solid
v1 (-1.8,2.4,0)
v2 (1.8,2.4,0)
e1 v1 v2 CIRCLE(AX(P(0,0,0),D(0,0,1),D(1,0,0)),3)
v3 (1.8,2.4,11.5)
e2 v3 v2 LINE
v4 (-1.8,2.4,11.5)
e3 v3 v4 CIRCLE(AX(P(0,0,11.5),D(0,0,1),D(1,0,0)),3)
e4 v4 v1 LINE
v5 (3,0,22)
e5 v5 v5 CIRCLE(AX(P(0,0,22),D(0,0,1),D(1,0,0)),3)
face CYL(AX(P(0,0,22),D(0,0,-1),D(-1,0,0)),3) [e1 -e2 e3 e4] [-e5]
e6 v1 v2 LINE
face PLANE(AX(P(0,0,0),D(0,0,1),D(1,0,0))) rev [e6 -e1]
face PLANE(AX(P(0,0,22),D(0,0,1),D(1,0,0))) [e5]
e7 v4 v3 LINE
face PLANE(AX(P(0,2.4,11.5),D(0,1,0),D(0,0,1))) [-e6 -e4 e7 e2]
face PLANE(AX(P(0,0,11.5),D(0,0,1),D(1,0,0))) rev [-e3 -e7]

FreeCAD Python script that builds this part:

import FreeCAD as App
import Part
import Sketcher

V = App.Vector
Q = App.Units.Quantity

doc = App.newDocument("Part")
body = doc.addObject("PartDesign::Body", "Body")

sketch1 = body.newObject("Sketcher::SketchObject", "Sketch")
sketch1.AttachmentSupport = (doc.getObject("XY_Plane"), [""])
sketch1.MapMode = "FlatFace"
sketch1.addGeometry(Part.Circle(V(0, 0, 0), V(0, 0, 1), 3), False)
sketch1.addConstraint([
    Sketcher.Constraint("Coincident", 0, 3, -1, 1),
    Sketcher.Constraint("Diameter", 0, Q("6 mm")),
])
pad1 = body.newObject("PartDesign::Pad", "Pad")
pad1.Profile = sketch1
pad1.Length = 22

sketch2 = body.newObject("Sketcher::SketchObject", "Sketch001")
sketch2.AttachmentSupport = (doc.getObject("XY_Plane"), [""])
sketch2.MapMode = "FlatFace"
sketch2.addGeometry([
    Part.LineSegment(V(-26.249913, 2.4, 0), V(26.249913, 2.4, 0)),
    Part.LineSegment(V(26.249913, 2.4, 0), V(26.249913, 51.299827, 0)),
    Part.LineSegment(V(26.249913, 51.299827, 0), V(-26.249913, 51.299827, 0)),
    Part.LineSegment(V(-26.249913, 51.299827, 0), V(-26.249913, 2.4, 0)),
], False)
sketch2.addConstraint([
    Sketcher.Constraint("Coincident", 0, 2, 1, 1),
    Sketcher.Constraint("Coincident", 1, 2, 2, 1),
    Sketcher.Constraint("Coincident", 2, 2, 3, 1),
    Sketcher.Constraint("Coincident", 3, 2, 0, 1),
    Sketcher.Constraint("Horizontal", 0),
    Sketcher.Constraint("Vertical", 1),
    Sketcher.Constraint("Horizontal", 2),
    Sketcher.Constraint("Vertical", 3),
    Sketcher.Constraint("DistanceY", -1, 1, 0, 2, Q("2.4 mm")),
    Sketcher.Constraint("DistanceX", 0, 1, 0, 2, Q("52.499827 mm")),
    Sketcher.Constraint("DistanceY", 1, 1, 1, 2, Q("48.899827 mm")),
    Sketcher.Constraint("DistanceX", -1, 1, 0, 2, Q("26.249913 mm")),
])
pocket1 = body.newObject("PartDesign::Pocket", "Pocket")
pocket1.Profile = sketch2
pocket1.Length = 11.5
pocket1.Reversed = True

doc.recompute()
